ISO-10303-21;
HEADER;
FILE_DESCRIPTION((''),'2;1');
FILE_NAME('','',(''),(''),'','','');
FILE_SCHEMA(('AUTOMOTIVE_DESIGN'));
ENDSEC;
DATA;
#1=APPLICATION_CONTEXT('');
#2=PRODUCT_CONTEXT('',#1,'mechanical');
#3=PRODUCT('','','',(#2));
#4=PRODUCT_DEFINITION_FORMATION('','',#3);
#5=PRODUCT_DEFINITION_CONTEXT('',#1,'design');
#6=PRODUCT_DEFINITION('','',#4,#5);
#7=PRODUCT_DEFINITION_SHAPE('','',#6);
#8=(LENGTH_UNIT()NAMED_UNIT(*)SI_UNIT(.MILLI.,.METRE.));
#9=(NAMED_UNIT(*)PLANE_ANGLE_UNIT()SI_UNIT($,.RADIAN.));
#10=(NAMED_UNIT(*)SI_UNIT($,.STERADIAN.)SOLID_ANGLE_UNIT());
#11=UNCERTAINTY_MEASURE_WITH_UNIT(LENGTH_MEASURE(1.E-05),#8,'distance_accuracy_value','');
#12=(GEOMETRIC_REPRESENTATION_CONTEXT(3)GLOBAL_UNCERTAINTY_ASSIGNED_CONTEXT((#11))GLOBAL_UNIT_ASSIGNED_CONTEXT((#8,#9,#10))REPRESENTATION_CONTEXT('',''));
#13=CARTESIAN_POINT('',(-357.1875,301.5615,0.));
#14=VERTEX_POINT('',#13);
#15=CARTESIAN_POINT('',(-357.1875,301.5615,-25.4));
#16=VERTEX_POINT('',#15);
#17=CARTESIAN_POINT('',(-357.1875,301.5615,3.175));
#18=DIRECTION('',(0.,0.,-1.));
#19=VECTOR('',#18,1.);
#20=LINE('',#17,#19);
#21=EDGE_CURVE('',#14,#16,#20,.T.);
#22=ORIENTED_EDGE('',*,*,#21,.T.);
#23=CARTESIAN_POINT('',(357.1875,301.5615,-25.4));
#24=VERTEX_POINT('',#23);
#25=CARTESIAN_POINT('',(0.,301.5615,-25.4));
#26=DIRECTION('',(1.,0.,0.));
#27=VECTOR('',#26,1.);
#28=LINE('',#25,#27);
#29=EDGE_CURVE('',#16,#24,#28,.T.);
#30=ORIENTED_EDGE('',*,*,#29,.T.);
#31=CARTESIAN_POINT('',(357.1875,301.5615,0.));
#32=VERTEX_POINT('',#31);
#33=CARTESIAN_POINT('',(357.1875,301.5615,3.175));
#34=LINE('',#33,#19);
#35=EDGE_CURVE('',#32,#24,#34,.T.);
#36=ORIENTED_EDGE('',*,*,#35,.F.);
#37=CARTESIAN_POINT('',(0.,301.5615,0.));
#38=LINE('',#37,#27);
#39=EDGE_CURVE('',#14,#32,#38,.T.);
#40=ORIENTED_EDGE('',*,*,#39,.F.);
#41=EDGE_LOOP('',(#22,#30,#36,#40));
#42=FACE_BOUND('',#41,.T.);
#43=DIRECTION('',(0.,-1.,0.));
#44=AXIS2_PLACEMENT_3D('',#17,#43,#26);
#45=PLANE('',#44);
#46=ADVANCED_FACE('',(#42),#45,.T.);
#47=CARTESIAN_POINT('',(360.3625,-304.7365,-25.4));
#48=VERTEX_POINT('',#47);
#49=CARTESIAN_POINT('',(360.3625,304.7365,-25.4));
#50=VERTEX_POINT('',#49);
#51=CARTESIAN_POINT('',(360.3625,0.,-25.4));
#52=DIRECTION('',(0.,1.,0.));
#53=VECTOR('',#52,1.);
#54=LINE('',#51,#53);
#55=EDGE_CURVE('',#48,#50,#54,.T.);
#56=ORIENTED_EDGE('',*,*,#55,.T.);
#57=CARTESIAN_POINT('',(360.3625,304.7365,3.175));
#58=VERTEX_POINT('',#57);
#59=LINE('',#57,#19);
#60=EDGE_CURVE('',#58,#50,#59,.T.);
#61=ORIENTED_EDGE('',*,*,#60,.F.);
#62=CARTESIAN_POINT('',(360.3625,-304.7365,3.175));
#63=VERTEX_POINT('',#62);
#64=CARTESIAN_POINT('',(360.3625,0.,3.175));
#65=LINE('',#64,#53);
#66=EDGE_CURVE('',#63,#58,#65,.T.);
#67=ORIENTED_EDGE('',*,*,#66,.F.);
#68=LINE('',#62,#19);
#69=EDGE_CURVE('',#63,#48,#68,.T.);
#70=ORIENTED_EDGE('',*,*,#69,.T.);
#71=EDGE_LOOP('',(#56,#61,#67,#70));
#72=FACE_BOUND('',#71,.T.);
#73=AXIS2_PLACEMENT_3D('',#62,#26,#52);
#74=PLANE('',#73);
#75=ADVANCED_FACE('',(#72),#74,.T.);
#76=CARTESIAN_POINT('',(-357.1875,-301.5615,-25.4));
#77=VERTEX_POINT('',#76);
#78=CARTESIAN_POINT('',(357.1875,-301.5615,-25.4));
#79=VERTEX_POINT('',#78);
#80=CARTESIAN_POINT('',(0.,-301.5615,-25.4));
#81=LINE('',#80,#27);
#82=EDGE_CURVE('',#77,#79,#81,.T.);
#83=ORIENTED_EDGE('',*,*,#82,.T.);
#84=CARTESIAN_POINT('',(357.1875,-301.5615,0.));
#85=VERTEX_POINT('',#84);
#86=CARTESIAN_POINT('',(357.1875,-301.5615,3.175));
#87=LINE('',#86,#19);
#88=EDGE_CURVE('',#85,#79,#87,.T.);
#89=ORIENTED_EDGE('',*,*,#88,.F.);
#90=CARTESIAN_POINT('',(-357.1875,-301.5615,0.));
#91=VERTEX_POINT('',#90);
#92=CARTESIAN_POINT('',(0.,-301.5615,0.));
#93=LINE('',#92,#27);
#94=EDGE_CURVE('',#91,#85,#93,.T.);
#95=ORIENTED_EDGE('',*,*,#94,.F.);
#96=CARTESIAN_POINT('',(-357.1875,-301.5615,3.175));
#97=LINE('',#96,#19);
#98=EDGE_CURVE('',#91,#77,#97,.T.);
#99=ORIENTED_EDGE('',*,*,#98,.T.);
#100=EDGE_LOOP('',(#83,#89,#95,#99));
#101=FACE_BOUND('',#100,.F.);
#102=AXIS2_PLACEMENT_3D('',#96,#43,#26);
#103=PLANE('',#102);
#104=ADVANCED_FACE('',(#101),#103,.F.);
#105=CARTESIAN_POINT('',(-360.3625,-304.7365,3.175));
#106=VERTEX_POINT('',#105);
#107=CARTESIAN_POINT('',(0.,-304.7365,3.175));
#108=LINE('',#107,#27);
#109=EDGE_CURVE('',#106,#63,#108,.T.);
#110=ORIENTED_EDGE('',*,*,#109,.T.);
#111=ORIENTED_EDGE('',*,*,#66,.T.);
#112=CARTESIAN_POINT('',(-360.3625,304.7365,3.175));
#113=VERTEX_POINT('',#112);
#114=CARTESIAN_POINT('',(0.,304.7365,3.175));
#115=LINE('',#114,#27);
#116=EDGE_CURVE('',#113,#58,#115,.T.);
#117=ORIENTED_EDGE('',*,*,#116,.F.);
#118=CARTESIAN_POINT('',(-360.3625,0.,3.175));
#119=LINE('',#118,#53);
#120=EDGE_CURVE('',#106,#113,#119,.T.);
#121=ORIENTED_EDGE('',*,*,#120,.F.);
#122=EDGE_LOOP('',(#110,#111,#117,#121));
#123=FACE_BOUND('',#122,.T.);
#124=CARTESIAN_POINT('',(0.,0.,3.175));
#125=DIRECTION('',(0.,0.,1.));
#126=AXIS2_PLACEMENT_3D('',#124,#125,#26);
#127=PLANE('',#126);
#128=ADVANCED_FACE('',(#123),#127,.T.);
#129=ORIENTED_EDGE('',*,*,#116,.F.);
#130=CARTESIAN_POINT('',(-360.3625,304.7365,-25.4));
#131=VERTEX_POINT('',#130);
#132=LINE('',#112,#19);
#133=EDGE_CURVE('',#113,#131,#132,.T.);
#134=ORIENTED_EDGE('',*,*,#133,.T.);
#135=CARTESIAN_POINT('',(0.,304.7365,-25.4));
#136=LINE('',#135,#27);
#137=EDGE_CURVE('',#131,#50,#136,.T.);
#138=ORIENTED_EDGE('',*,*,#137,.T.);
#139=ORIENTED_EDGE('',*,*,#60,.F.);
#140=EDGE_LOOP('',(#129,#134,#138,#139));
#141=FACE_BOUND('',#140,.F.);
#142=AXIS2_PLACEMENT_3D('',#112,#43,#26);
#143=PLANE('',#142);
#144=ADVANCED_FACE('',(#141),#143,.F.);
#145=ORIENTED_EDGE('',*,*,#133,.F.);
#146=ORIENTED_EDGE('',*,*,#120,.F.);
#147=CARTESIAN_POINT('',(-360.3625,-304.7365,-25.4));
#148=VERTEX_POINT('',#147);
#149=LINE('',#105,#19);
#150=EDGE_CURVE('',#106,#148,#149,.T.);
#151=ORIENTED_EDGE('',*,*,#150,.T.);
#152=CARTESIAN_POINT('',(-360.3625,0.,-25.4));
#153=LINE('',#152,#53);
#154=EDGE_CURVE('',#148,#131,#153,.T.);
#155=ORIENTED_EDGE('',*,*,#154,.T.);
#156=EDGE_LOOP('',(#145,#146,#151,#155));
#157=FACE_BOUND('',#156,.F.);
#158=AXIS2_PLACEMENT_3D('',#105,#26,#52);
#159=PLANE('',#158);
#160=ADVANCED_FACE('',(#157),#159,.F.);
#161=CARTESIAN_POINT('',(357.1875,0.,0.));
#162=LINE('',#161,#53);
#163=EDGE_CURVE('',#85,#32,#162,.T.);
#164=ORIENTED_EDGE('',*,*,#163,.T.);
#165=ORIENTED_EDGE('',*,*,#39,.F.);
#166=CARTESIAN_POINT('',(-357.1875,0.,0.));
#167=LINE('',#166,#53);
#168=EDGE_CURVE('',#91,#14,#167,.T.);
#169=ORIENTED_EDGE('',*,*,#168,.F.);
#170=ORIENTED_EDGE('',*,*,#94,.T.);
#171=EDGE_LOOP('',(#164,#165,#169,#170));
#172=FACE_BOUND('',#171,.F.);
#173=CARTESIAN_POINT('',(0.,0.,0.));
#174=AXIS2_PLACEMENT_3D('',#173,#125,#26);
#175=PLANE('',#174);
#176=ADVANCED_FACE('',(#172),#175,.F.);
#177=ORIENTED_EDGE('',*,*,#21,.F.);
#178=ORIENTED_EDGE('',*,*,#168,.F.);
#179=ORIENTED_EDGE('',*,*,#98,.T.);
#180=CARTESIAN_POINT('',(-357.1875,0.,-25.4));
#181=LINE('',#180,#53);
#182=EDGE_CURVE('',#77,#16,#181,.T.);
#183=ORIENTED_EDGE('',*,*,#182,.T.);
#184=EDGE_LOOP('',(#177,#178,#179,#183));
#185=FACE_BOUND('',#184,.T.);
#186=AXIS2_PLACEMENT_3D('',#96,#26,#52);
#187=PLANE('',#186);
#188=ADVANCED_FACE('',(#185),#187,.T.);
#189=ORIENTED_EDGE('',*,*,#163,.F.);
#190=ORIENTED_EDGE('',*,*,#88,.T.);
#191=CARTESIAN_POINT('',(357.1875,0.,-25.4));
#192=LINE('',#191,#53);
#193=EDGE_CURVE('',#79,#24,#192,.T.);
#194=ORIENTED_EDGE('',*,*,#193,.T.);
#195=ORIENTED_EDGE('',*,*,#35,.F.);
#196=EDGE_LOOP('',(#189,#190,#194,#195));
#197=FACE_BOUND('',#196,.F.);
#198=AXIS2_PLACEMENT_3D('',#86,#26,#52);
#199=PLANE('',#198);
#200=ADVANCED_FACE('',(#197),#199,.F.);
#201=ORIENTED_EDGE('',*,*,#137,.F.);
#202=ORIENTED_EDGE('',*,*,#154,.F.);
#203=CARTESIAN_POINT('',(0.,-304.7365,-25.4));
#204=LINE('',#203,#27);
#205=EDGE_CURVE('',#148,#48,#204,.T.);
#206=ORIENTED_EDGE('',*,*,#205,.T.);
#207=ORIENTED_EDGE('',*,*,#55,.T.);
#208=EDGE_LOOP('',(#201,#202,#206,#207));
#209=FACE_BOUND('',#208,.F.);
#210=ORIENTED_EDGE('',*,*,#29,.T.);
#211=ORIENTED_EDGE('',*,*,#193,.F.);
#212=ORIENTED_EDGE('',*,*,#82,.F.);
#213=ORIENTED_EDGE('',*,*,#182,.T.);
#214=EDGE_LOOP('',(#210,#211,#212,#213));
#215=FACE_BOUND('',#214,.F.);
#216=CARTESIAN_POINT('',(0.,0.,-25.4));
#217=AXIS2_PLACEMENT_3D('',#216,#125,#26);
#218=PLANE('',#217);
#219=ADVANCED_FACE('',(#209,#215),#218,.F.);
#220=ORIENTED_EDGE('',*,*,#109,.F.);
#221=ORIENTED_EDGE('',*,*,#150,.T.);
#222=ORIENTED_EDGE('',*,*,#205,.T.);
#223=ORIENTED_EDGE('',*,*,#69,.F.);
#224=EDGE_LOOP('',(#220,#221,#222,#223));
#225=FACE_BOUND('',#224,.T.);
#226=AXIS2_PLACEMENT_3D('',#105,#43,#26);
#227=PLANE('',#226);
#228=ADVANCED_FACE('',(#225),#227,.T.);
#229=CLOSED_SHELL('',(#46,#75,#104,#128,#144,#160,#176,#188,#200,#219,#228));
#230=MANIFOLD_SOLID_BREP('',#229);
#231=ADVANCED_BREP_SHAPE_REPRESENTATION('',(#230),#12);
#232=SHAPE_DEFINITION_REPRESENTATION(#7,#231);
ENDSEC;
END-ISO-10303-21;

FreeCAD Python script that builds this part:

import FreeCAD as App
import Part
import Sketcher
from FreeCAD import Vector
Q = App.Units.Quantity

doc = App.newDocument("Part")
body = doc.addObject("PartDesign::Body", "Body")

# Sketch on XY plane
sketch1 = doc.addObject("Sketcher::SketchObject", "Sketch")
body.addObject(sketch1)
sketch1.AttachmentSupport = (doc.XY_Plane, [""])
sketch1.MapMode = "FlatFace"
sketch1.addGeometry(Part.LineSegment(Vector(-357, 302, 0), Vector(-357, -302, 0)), False)
sketch1.addGeometry(Part.LineSegment(Vector(-357, -302, 0), Vector(357, -302, 0)), False)
sketch1.addGeometry(Part.LineSegment(Vector(357, -302, 0), Vector(357, 302, 0)), False)
sketch1.addGeometry(Part.LineSegment(Vector(357, 302, 0), Vector(-357, 302, 0)), False)
sketch1.addConstraint(Sketcher.Constraint("Coincident", 0, 2, 1, 1))
sketch1.addConstraint(Sketcher.Constraint("Coincident", 1, 2, 2, 1))
sketch1.addConstraint(Sketcher.Constraint("Coincident", 2, 2, 3, 1))
sketch1.addConstraint(Sketcher.Constraint("Coincident", 3, 2, 0, 1))
sketch1.addConstraint(Sketcher.Constraint("Vertical", 0))
sketch1.addConstraint(Sketcher.Constraint("Horizontal", 1))
sketch1.addConstraint(Sketcher.Constraint("Vertical", 2))
sketch1.addConstraint(Sketcher.Constraint("Horizontal", 3))
sketch1.addConstraint(Sketcher.Constraint("Symmetric", 0, 2, 2, 2, -1, 1))
sketch1.addConstraint(Sketcher.Constraint("DistanceX", 1, 1, 1, 2, Q("28.125 in")))
sketch1.addConstraint(Sketcher.Constraint("DistanceY", 0, 2, 0, 1, Q("23.745 in")))
pad1 = doc.addObject("PartDesign::Pad", "Pad")
body.addObject(pad1)
pad1.Profile = sketch1
pad1.Length = Q("0.125 in")

# Sketch on XY plane
sketch2 = doc.addObject("Sketcher::SketchObject", "Sketch001")
body.addObject(sketch2)
sketch2.AttachmentSupport = (doc.XY_Plane, [""])
sketch2.MapMode = "FlatFace"
sketch2.AttachmentOffset = App.Placement(Vector(0, 0, 0.125 * 25.4), App.Rotation())
sketch2.addGeometry(Part.LineSegment(Vector(-360, 305, 0), Vector(-360, -305, 0)), False)
sketch2.addGeometry(Part.LineSegment(Vector(-360, -305, 0), Vector(360, -305, 0)), False)
sketch2.addGeometry(Part.LineSegment(Vector(360, -305, 0), Vector(360, 305, 0)), False)
sketch2.addGeometry(Part.LineSegment(Vector(360, 305, 0), Vector(-360, 305, 0)), False)
sketch2.addGeometry(Part.LineSegment(Vector(357, -302, 0), Vector(-357, -302, 0)), False)
sketch2.addGeometry(Part.LineSegment(Vector(-357, -302, 0), Vector(-357, 302, 0)), False)
sketch2.addGeometry(Part.LineSegment(Vector(-357, 302, 0), Vector(357, 302, 0)), False)
sketch2.addGeometry(Part.LineSegment(Vector(357, 302, 0), Vector(357, -302, 0)), False)
sketch2.addConstraint(Sketcher.Constraint("Coincident", 0, 2, 1, 1))
sketch2.addConstraint(Sketcher.Constraint("Coincident", 1, 2, 2, 1))
sketch2.addConstraint(Sketcher.Constraint("Coincident", 2, 2, 3, 1))
sketch2.addConstraint(Sketcher.Constraint("Coincident", 3, 2, 0, 1))
sketch2.addConstraint(Sketcher.Constraint("Coincident", 4, 2, 5, 1))
sketch2.addConstraint(Sketcher.Constraint("Coincident", 5, 2, 6, 1))
sketch2.addConstraint(Sketcher.Constraint("Coincident", 6, 2, 7, 1))
sketch2.addConstraint(Sketcher.Constraint("Coincident", 7, 2, 4, 1))
sketch2.addConstraint(Sketcher.Constraint("Vertical", 0))
sketch2.addConstraint(Sketcher.Constraint("Horizontal", 1))
sketch2.addConstraint(Sketcher.Constraint("Vertical", 2))
sketch2.addConstraint(Sketcher.Constraint("Horizontal", 3))
sketch2.addConstraint(Sketcher.Constraint("Horizontal", 4))
sketch2.addConstraint(Sketcher.Constraint("Vertical", 5))
sketch2.addConstraint(Sketcher.Constraint("Horizontal", 6))
sketch2.addConstraint(Sketcher.Constraint("Vertical", 7))
sketch2.addConstraint(Sketcher.Constraint("Symmetric", 0, 2, 2, 2, -1, 1))
sketch2.addConstraint(Sketcher.Constraint("Symmetric", 4, 2, 6, 2, -1, 1))
sketch2.addConstraint(Sketcher.Constraint("DistanceX", 1, 1, 1, 2, Q("28.375 in")))
sketch2.addConstraint(Sketcher.Constraint("DistanceX", 4, 2, 4, 1, Q("28.125 in")))
sketch2.addConstraint(Sketcher.Constraint("DistanceY", 0, 2, 0, 1, Q("23.995 in")))
sketch2.addConstraint(Sketcher.Constraint("DistanceY", 5, 1, 5, 2, Q("23.745 in")))
pad2 = doc.addObject("PartDesign::Pad", "Pad001")
body.addObject(pad2)
pad2.Profile = sketch2
pad2.Length = Q("1.125 in")
pad2.Reversed = True

doc.recompute()
